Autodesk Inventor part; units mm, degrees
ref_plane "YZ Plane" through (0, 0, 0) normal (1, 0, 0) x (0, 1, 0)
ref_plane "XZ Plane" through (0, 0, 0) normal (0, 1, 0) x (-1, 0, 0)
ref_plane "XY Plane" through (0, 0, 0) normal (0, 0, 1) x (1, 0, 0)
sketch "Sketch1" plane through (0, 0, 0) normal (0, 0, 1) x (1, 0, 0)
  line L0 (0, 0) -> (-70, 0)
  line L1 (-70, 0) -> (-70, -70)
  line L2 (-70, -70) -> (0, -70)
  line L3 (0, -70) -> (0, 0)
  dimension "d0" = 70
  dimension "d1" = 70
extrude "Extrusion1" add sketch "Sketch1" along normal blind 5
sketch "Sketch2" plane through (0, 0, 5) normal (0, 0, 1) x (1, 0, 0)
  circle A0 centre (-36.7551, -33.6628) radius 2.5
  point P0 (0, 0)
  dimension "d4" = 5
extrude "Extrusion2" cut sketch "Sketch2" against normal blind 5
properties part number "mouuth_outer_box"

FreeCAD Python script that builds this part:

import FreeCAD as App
import Part
import Sketcher
Q = App.Units.Quantity


def add_polygon(sketch, points):
    """Adds a closed chain of lines whose ends are joined by coincident constraints."""
    first, n = sketch.GeometryCount, len(points)
    for a, b in zip(points, points[1:] + points[:1]):
        sketch.addGeometry(Part.LineSegment(App.Vector(*a, 0), App.Vector(*b, 0)), False)
    for i in range(n):
        sketch.addConstraint(Sketcher.Constraint("Coincident", first + i, 2, first + (i + 1) % n, 1))

doc = App.newDocument("Part")
body = doc.addObject("PartDesign::Body", "Body")

# Sketch on XY plane
sketch1 = body.newObject("Sketcher::SketchObject", "Sketch")
sketch1.AttachmentSupport = (doc.getObject("XY_Plane"), [""])
sketch1.MapMode = "FlatFace"
add_polygon(sketch1, [(0, -70), (0, 0), (-70, 0), (-70, -70)])  # lines 0-3
sketch1.addConstraint([
    Sketcher.Constraint("Vertical", 0),
    Sketcher.Constraint("Horizontal", 1),
    Sketcher.Constraint("Vertical", 2),
    Sketcher.Constraint("Horizontal", 3),
    Sketcher.Constraint("Coincident", 0, 2, -1, 1),
    Sketcher.Constraint("Equal", 3, 0),
    Sketcher.Constraint("DistanceX", 1, 2, 1, 1, Q("70 mm")),
])
pad1 = body.newObject("PartDesign::Pad", "Pad")
pad1.Profile = sketch1
pad1.Length = 5

# Sketch on XY plane
sketch2 = body.newObject("Sketcher::SketchObject", "Sketch001")
sketch2.AttachmentSupport = (doc.getObject("XY_Plane"), [""])
sketch2.MapMode = "FlatFace"
sketch2.AttachmentOffset = App.Placement(App.Vector(0, 0, 5), App.Rotation())
sketch2.addGeometry(Part.Circle(App.Vector(-36.7551, -33.6628, 0), App.Vector(0, 0, 1), 2.5), False)
sketch2.addConstraint([
    Sketcher.Constraint("Diameter", 0, Q("5 mm")),
    Sketcher.Constraint("DistanceX", 0, 3, -1, 1, Q("36.755 mm")),
    Sketcher.Constraint("DistanceY", 0, 3, -1, 1, Q("33.6628 mm")),
])
pocket1 = body.newObject("PartDesign::Pocket", "Pocket")
pocket1.Profile = sketch2
pocket1.Length = 5

doc.recompute()
